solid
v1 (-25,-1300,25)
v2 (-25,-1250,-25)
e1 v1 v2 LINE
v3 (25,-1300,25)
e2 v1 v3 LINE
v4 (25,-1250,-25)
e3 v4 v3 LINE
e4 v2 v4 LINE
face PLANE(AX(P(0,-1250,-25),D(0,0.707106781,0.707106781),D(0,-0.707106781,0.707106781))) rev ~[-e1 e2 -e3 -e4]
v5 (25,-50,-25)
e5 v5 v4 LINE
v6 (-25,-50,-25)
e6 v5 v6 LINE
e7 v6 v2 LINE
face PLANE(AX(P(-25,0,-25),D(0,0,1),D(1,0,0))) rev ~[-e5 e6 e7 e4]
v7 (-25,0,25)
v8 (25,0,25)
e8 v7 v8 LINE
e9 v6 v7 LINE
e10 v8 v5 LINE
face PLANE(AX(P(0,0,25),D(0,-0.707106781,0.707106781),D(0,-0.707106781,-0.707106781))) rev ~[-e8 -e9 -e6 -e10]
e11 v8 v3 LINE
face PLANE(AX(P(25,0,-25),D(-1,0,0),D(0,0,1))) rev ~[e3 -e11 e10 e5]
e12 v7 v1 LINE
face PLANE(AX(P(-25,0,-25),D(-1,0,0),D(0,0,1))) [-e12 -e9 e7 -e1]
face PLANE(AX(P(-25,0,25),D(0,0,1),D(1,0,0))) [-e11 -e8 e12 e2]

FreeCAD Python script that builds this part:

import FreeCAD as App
import Part
import Sketcher


def add_polygon(sketch, points):
    """Adds a closed chain of lines whose ends are joined by coincident constraints."""
    first, n = sketch.GeometryCount, len(points)
    for a, b in zip(points, points[1:] + points[:1]):
        sketch.addGeometry(Part.LineSegment(App.Vector(*a, 0), App.Vector(*b, 0)), False)
    for i in range(n):
        sketch.addConstraint(Sketcher.Constraint("Coincident", first + i, 2, first + (i + 1) % n, 1))

doc = App.newDocument("Part")
params = doc.addObject("Spreadsheet::Sheet", "Params")
for row, (alias, value) in enumerate([
    ("sketch1_width", "50 mm"),
    ("pad1_length", "1300 mm"),
    ("sketch2_width", "50 mm"),
], start=1):
    params.set(f"A{row}", alias)
    params.set(f"B{row}", "=" + value)
    params.setAlias(f"B{row}", alias)

body = doc.addObject("PartDesign::Body", "Body")

sketch1 = body.newObject("Sketcher::SketchObject", "Sketch")
sketch1.AttachmentSupport = (doc.getObject("XZ_Plane"), [""])
sketch1.MapMode = "FlatFace"
add_polygon(sketch1, [(-25, 25), (-25, -25), (25, -25), (25, 25)])
sketch1.addConstraint([
    Sketcher.Constraint("Vertical", 0),
    Sketcher.Constraint("Horizontal", 1),
    Sketcher.Constraint("Vertical", 2),
    Sketcher.Constraint("Horizontal", 3),
    Sketcher.Constraint("Symmetric", 0, 2, 2, 2, -1, 1),
    Sketcher.Constraint("Equal", 3, 0),
    Sketcher.Constraint("DistanceX", 1, 1, 1, 2, 50.0),
])
sketch1.setExpression("Constraints[10]", "Params.sketch1_width")
pad1 = body.newObject("PartDesign::Pad", "Pad")
pad1.Profile = sketch1
pad1.setExpression("Length", "Params.pad1_length")

sketch2 = body.newObject("Sketcher::SketchObject", "Sketch001")
sketch2.AttachmentSupport = (doc.getObject("YZ_Plane"), [""])
sketch2.MapMode = "FlatFace"
add_polygon(sketch2, [(-1300, -25), (-1250, -25), (-1300, 25)])
add_polygon(sketch2, [(0, 25), (-50, -25), (0, -25)])
sketch2.addConstraint([
    Sketcher.Constraint("Horizontal", 0),
    Sketcher.Constraint("Vertical", 2),
    Sketcher.Constraint("Horizontal", 4),
    Sketcher.Constraint("Vertical", 5),
    Sketcher.Constraint("Symmetric", 4, 2, 5, 2, -1, 1),
    Sketcher.Constraint("Perpendicular", 1, 3),
    Sketcher.Constraint("Horizontal", 2, 2, 3, 2),
    Sketcher.Constraint("Horizontal", 1, 2, 5, 2),
    Sketcher.Constraint("Equal", 0, 4),
    Sketcher.Constraint("DistanceX", 0, 1, 0, 2, 50.0),
    Sketcher.Constraint("DistanceX", 0, 2, -1, 1, 1250.0),
])
sketch2.setExpression("Constraints[15]", "Params.sketch2_width")
pocket1 = body.newObject("PartDesign::Pocket", "Pocket")
pocket1.Profile = sketch2
pocket1.Type = "ThroughAll"
pocket1.Midplane = True

doc.recompute()
